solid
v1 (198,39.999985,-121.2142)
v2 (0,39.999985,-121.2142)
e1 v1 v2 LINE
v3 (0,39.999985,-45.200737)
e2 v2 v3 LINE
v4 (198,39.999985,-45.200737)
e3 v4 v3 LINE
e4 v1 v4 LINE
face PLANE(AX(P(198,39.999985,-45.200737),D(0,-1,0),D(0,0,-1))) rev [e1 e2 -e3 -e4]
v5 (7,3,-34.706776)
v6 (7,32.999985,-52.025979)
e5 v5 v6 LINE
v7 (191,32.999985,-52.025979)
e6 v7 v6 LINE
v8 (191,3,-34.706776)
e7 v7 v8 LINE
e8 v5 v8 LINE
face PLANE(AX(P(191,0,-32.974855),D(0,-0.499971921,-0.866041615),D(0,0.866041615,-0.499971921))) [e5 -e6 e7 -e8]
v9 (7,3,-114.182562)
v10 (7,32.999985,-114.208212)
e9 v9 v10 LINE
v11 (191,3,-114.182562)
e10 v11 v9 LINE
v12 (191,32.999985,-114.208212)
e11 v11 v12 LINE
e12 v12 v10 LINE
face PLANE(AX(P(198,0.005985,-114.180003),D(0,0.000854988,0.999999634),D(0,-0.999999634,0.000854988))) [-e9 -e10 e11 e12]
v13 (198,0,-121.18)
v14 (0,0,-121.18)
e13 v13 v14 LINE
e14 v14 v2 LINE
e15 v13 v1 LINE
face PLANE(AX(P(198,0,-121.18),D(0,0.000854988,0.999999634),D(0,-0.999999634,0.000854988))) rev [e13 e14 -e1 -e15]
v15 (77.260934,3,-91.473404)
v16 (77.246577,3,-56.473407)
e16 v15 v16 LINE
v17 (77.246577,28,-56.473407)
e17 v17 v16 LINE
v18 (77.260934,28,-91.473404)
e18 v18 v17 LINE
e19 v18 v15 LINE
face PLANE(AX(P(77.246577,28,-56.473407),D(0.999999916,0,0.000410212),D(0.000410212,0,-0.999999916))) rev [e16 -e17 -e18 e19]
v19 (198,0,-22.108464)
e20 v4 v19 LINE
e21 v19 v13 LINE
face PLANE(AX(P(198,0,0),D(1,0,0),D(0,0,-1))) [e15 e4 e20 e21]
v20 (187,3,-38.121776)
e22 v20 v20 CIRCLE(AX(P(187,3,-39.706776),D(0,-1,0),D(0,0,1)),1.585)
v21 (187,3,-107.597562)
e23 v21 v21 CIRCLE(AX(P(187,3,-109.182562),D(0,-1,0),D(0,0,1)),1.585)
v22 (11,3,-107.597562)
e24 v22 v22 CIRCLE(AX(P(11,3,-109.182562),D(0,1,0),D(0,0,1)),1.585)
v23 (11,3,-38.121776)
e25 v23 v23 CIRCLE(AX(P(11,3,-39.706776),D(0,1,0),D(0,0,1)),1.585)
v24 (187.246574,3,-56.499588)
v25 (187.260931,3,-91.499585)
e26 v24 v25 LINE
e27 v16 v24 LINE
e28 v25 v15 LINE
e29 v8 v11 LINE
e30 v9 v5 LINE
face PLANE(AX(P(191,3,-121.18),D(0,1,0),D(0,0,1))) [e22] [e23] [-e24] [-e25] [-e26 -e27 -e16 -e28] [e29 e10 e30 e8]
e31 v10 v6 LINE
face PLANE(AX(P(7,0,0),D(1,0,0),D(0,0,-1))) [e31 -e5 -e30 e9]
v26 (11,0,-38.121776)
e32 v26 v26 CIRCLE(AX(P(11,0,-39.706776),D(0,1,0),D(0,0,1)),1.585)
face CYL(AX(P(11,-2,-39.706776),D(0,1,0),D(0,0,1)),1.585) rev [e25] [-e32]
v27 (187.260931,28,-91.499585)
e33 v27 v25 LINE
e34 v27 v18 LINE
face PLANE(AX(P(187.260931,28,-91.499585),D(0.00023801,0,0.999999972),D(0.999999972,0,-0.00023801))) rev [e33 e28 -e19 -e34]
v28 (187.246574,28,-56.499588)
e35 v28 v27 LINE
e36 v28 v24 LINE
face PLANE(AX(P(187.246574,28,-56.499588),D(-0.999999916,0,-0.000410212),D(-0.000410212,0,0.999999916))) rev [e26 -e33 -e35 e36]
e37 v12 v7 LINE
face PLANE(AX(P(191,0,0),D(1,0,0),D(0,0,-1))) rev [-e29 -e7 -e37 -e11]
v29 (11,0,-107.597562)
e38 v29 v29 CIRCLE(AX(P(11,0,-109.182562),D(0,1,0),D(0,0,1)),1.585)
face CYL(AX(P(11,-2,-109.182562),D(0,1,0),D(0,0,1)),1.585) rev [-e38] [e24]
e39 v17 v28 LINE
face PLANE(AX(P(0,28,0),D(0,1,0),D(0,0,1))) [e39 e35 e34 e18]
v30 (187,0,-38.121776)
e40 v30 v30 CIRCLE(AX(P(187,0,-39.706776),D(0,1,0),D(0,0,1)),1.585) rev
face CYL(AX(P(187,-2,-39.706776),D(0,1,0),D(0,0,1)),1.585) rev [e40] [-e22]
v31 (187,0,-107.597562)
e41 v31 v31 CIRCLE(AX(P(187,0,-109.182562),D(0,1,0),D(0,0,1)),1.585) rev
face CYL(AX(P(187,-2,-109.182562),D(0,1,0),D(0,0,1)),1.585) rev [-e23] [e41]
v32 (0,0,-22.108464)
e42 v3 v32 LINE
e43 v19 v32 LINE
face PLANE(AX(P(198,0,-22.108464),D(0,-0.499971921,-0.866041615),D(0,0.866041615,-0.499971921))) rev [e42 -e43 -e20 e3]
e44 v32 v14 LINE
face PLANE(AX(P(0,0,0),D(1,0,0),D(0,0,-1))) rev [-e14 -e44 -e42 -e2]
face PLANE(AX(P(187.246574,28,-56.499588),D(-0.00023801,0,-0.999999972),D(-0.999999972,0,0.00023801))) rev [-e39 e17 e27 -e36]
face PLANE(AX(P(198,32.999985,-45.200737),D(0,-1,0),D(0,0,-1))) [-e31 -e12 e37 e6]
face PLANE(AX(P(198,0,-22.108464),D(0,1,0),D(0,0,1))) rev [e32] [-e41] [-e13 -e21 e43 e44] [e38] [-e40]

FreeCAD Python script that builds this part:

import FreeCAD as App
import Part
import Sketcher

V = App.Vector
Q = App.Units.Quantity


def faces_at(feature, points):
    """Names of the faces that lie closest to the given points."""
    faces = feature.Shape.Faces
    near = lambda p: min(range(len(faces)), key=lambda i: faces[i].distToShape(Part.Vertex(*p))[0])
    return sorted({f"Face{near(p) + 1}" for p in points})

doc = App.newDocument("Part")
params = doc.addObject("Spreadsheet::Sheet", "Params")
for row, (alias, value) in enumerate([
    ("sketch1_length", "40 mm"),
    ("pad1_length", "198 mm"),
    ("thickness_wall", "7 mm"),
    ("pad2_length", "191 mm"),
    ("sketch3_width", "3 mm"),
    ("pad3_length", "191 mm"),
    ("sketch4_diameter", "3.17 mm"),
    ("pocket1_length", "5 mm"),
    ("sketch5_length", "110 mm"),
    ("sketch5_length2", "35 mm"),
    ("pad4_length", "25 mm"),
], start=1):
    params.set(f"A{row}", alias)
    params.set(f"B{row}", "=" + value)
    params.setAlias(f"B{row}", alias)

body = doc.addObject("PartDesign::Body", "Body")

# Sketch on YZ plane
sketch1 = body.newObject("Sketcher::SketchObject", "Sketch")
sketch1.AttachmentSupport = (doc.getObject("YZ_Plane"), [""])
sketch1.MapMode = "FlatFace"
sketch1.addGeometry(Part.LineSegment(V(18, -32, 0), V(0, -22, 0)), False)
sketch1.addGeometry(Part.LineSegment(V(0, -22, 0), V(0, -121, 0)), False)
sketch1.addGeometry(Part.LineSegment(V(0, -121, 0), V(40, -121, 0)), False)
sketch1.addGeometry(Part.LineSegment(V(40, -121, 0), V(40, -45, 0)), False)
sketch1.addGeometry(Part.LineSegment(V(40, -45, 0), V(18, -32, 0)), False)
sketch1.addConstraint(Sketcher.Constraint("Coincident", 0, 2, 1, 1))
sketch1.addConstraint(Sketcher.Constraint("Coincident", 1, 2, 2, 1))
sketch1.addConstraint(Sketcher.Constraint("Coincident", 2, 2, 3, 1))
sketch1.addConstraint(Sketcher.Constraint("Coincident", 3, 2, 4, 1))
sketch1.addConstraint(Sketcher.Constraint("Coincident", 4, 2, 0, 1))
sketch1.addConstraint(Sketcher.Constraint("Vertical", 1))
sketch1.addConstraint(Sketcher.Constraint("Vertical", 3))
sketch1.addConstraint(Sketcher.Constraint("PointOnObject", 0, 2, -2))
sketch1.addConstraint(Sketcher.Constraint("Parallel", 0, 4))
sketch1.addConstraint(Sketcher.Constraint("Distance", 2, Q("40 mm")))
sketch1.addConstraint(Sketcher.Constraint("DistanceY", 1, 2, -1, 1, Q("121.18 mm")))
sketch1.addConstraint(Sketcher.Constraint("DistanceY", 2, 2, -1, 1, Q("121.2142 mm")))
sketch1.addConstraint(Sketcher.Constraint("Distance", 0, Q("20.667848 mm")))
sketch1.addConstraint(Sketcher.Constraint("Distance", 4, Q("25.519292 mm")))
sketch1.addConstraint(Sketcher.Constraint("DistanceY", 1, 2, 1, 1, Q("99.071536 mm")))
sketch1.setExpression("Constraints[9]", "Params.sketch1_length")
pad1 = body.newObject("PartDesign::Pad", "Pad")
pad1.Profile = sketch1
pad1.setExpression("Length", "Params.pad1_length")
doc.recompute()

thickness = body.newObject("PartDesign::Thickness", "Thickness")
thickness.Base = (pad1, faces_at(pad1, [(99, 0, -71.644)]))
thickness.setExpression("Value", "Params.thickness_wall")
thickness.Reversed = True
thickness.Join = "Intersection"

# Sketch on YZ plane
sketch2 = body.newObject("Sketcher::SketchObject", "Sketch001")
sketch2.AttachmentSupport = (doc.getObject("YZ_Plane"), [""])
sketch2.MapMode = "FlatFace"
sketch2.addGeometry(Part.LineSegment(V(0, -33, 0), V(0, -30.2, 0)), False)
sketch2.addGeometry(Part.LineSegment(V(0, -30.2, 0), V(33, -49.2, 0)), False)
sketch2.addGeometry(Part.LineSegment(V(33, -49.2, 0), V(33, -52, 0)), False)
sketch2.addGeometry(Part.LineSegment(V(33, -52, 0), V(0, -33, 0)), False)
sketch2.addConstraint(Sketcher.Constraint("Coincident", 0, 2, 1, 1))
sketch2.addConstraint(Sketcher.Constraint("Coincident", 1, 2, 2, 1))
sketch2.addConstraint(Sketcher.Constraint("Coincident", 2, 2, 3, 1))
sketch2.addConstraint(Sketcher.Constraint("Coincident", 3, 2, 0, 1))
sketch2.addConstraint(Sketcher.Constraint("Vertical", 0))
sketch2.addConstraint(Sketcher.Constraint("Vertical", 2))
sketch2.addConstraint(Sketcher.Constraint("PointOnObject", 0, 2, -2))
sketch2.addConstraint(Sketcher.Constraint("Parallel", 1, 3))
sketch2.addConstraint(Sketcher.Constraint("DistanceY", 0, 1, 0, 2, Q("2.783638 mm")))
sketch2.addConstraint(Sketcher.Constraint("DistanceY", 1, 2, -1, 1, Q("49.24234 mm")))
sketch2.addConstraint(Sketcher.Constraint("Distance", 1, Q("38.104388 mm")))
sketch2.addConstraint(Sketcher.Constraint("DistanceY", 0, 2, -1, 1, Q("30.191217 mm")))
pad2 = body.newObject("PartDesign::Pad", "Pad001")
pad2.Profile = sketch2
pad2.setExpression("Length", "Params.pad2_length")

# Sketch on YZ plane
sketch3 = body.newObject("Sketcher::SketchObject", "Sketch002")
sketch3.AttachmentSupport = (doc.getObject("YZ_Plane"), [""])
sketch3.MapMode = "FlatFace"
sketch3.addGeometry(Part.LineSegment(V(3, -121.2, 0), V(0, -121.2, 0)), False)
sketch3.addGeometry(Part.LineSegment(V(0, -121.2, 0), V(0, -25.9, 0)), False)
sketch3.addGeometry(Part.LineSegment(V(0, -25.9, 0), V(3, -25.9, 0)), False)
sketch3.addGeometry(Part.LineSegment(V(3, -25.9, 0), V(3, -121.2, 0)), False)
sketch3.addConstraint(Sketcher.Constraint("Coincident", 0, 2, 1, 1))
sketch3.addConstraint(Sketcher.Constraint("Coincident", 1, 2, 2, 1))
sketch3.addConstraint(Sketcher.Constraint("Coincident", 2, 2, 3, 1))
sketch3.addConstraint(Sketcher.Constraint("Coincident", 3, 2, 0, 1))
sketch3.addConstraint(Sketcher.Constraint("Horizontal", 0))
sketch3.addConstraint(Sketcher.Constraint("Vertical", 1))
sketch3.addConstraint(Sketcher.Constraint("Horizontal", 2))
sketch3.addConstraint(Sketcher.Constraint("Vertical", 3))
sketch3.addConstraint(Sketcher.Constraint("PointOnObject", 0, 2, -2))
sketch3.addConstraint(Sketcher.Constraint("DistanceX", 0, 2, 0, 1, Q("3 mm")))
sketch3.addConstraint(Sketcher.Constraint("DistanceY", 0, 2, -1, 1, Q("121.18 mm")))
sketch3.addConstraint(Sketcher.Constraint("DistanceY", 1, 1, 1, 2, Q("95.24564 mm")))
sketch3.setExpression("Constraints[9]", "Params.sketch3_width")
pad3 = body.newObject("PartDesign::Pad", "Pad002")
pad3.Profile = sketch3
pad3.setExpression("Length", "Params.pad3_length")

# Sketch on XZ plane
sketch4 = body.newObject("Sketcher::SketchObject", "Sketch003")
sketch4.AttachmentSupport = (doc.getObject("XZ_Plane"), [""])
sketch4.MapMode = "FlatFace"
sketch4.AttachmentOffset = App.Placement(V(0, 0, -3), App.Rotation())
sketch4.addGeometry(Part.Circle(V(11, -109.2, 0), V(0, 0, 1), 1.6), False)
sketch4.addGeometry(Part.Circle(V(11, -39.7, 0), V(0, 0, 1), 1.6), False)
sketch4.addConstraint(Sketcher.Constraint("Equal", 0, 1))
sketch4.addConstraint(Sketcher.Constraint("Vertical", 0, 3, 1, 3))
sketch4.addConstraint(Sketcher.Constraint("Diameter", 0, Q("3.17 mm")))
sketch4.addConstraint(Sketcher.Constraint("DistanceX", -1, 1, 0, 3, Q("11 mm")))
sketch4.addConstraint(Sketcher.Constraint("DistanceY", 0, 3, -1, 1, Q("109.182562 mm")))
sketch4.addConstraint(Sketcher.Constraint("DistanceY", 1, 3, -1, 1, Q("39.706776 mm")))
sketch4.setExpression("Constraints[2]", "Params.sketch4_diameter")
pocket1 = body.newObject("PartDesign::Pocket", "Pocket")
pocket1.Profile = sketch4
pocket1.setExpression("Length", "Params.pocket1_length")
pocket1.Reversed = True
doc.recompute()

datumplane = body.newObject("PartDesign::Plane", "DatumPlane")
datumplane.AttachmentSupport = (doc.getObject("YZ_Plane"), [""])
datumplane.MapMode = "FlatFace"
datumplane.AttachmentOffset = App.Placement(V(0, 0, 99), App.Rotation())
mirrored = body.newObject("PartDesign::Mirrored", "Mirrored")
mirrored.Originals = [pocket1]
mirrored.MirrorPlane = (datumplane, [""])
body.Tip = mirrored

# Sketch on XZ plane
sketch5 = body.newObject("Sketcher::SketchObject", "Sketch004")
sketch5.AttachmentSupport = (doc.getObject("XZ_Plane"), [""])
sketch5.MapMode = "FlatFace"
sketch5.AttachmentOffset = App.Placement(V(0, 0, -3), App.Rotation())
sketch5.addGeometry(Part.LineSegment(V(77, -56, 0), V(187, -56, 0)), False)
sketch5.addGeometry(Part.LineSegment(V(187, -56, 0), V(187, -91, 0)), False)
sketch5.addGeometry(Part.LineSegment(V(187, -91, 0), V(77, -91, 0)), False)
sketch5.addGeometry(Part.LineSegment(V(77, -91, 0), V(77, -56, 0)), False)
sketch5.addConstraint(Sketcher.Constraint("Coincident", 0, 2, 1, 1))
sketch5.addConstraint(Sketcher.Constraint("Coincident", 1, 2, 2, 1))
sketch5.addConstraint(Sketcher.Constraint("Coincident", 2, 2, 3, 1))
sketch5.addConstraint(Sketcher.Constraint("Coincident", 3, 2, 0, 1))
sketch5.addConstraint(Sketcher.Constraint("Parallel", 0, 2))
sketch5.addConstraint(Sketcher.Constraint("Parallel", 1, 3))
sketch5.addConstraint(Sketcher.Constraint("Distance", 0, Q("110 mm")))
sketch5.addConstraint(Sketcher.Constraint("Distance", 1, Q("35 mm")))
sketch5.addConstraint(Sketcher.Constraint("DistanceX", -1, 1, 1, 2, Q("187.260931 mm")))
sketch5.addConstraint(Sketcher.Constraint("DistanceY", 1, 2, 2, 2, Q("0.026181 mm")))
sketch5.addConstraint(Sketcher.Constraint("DistanceX", 2, 2, 0, 2, Q("109.985639 mm")))
sketch5.addConstraint(Sketcher.Constraint("DistanceY", 0, 2, -1, 1, Q("56.499588 mm")))
sketch5.setExpression("Constraints[6]", "Params.sketch5_length")
sketch5.setExpression("Constraints[7]", "Params.sketch5_length2")
pad4 = body.newObject("PartDesign::Pad", "Pad003")
pad4.Profile = sketch5
pad4.setExpression("Length", "Params.pad4_length")
pad4.Reversed = True

doc.recompute()
